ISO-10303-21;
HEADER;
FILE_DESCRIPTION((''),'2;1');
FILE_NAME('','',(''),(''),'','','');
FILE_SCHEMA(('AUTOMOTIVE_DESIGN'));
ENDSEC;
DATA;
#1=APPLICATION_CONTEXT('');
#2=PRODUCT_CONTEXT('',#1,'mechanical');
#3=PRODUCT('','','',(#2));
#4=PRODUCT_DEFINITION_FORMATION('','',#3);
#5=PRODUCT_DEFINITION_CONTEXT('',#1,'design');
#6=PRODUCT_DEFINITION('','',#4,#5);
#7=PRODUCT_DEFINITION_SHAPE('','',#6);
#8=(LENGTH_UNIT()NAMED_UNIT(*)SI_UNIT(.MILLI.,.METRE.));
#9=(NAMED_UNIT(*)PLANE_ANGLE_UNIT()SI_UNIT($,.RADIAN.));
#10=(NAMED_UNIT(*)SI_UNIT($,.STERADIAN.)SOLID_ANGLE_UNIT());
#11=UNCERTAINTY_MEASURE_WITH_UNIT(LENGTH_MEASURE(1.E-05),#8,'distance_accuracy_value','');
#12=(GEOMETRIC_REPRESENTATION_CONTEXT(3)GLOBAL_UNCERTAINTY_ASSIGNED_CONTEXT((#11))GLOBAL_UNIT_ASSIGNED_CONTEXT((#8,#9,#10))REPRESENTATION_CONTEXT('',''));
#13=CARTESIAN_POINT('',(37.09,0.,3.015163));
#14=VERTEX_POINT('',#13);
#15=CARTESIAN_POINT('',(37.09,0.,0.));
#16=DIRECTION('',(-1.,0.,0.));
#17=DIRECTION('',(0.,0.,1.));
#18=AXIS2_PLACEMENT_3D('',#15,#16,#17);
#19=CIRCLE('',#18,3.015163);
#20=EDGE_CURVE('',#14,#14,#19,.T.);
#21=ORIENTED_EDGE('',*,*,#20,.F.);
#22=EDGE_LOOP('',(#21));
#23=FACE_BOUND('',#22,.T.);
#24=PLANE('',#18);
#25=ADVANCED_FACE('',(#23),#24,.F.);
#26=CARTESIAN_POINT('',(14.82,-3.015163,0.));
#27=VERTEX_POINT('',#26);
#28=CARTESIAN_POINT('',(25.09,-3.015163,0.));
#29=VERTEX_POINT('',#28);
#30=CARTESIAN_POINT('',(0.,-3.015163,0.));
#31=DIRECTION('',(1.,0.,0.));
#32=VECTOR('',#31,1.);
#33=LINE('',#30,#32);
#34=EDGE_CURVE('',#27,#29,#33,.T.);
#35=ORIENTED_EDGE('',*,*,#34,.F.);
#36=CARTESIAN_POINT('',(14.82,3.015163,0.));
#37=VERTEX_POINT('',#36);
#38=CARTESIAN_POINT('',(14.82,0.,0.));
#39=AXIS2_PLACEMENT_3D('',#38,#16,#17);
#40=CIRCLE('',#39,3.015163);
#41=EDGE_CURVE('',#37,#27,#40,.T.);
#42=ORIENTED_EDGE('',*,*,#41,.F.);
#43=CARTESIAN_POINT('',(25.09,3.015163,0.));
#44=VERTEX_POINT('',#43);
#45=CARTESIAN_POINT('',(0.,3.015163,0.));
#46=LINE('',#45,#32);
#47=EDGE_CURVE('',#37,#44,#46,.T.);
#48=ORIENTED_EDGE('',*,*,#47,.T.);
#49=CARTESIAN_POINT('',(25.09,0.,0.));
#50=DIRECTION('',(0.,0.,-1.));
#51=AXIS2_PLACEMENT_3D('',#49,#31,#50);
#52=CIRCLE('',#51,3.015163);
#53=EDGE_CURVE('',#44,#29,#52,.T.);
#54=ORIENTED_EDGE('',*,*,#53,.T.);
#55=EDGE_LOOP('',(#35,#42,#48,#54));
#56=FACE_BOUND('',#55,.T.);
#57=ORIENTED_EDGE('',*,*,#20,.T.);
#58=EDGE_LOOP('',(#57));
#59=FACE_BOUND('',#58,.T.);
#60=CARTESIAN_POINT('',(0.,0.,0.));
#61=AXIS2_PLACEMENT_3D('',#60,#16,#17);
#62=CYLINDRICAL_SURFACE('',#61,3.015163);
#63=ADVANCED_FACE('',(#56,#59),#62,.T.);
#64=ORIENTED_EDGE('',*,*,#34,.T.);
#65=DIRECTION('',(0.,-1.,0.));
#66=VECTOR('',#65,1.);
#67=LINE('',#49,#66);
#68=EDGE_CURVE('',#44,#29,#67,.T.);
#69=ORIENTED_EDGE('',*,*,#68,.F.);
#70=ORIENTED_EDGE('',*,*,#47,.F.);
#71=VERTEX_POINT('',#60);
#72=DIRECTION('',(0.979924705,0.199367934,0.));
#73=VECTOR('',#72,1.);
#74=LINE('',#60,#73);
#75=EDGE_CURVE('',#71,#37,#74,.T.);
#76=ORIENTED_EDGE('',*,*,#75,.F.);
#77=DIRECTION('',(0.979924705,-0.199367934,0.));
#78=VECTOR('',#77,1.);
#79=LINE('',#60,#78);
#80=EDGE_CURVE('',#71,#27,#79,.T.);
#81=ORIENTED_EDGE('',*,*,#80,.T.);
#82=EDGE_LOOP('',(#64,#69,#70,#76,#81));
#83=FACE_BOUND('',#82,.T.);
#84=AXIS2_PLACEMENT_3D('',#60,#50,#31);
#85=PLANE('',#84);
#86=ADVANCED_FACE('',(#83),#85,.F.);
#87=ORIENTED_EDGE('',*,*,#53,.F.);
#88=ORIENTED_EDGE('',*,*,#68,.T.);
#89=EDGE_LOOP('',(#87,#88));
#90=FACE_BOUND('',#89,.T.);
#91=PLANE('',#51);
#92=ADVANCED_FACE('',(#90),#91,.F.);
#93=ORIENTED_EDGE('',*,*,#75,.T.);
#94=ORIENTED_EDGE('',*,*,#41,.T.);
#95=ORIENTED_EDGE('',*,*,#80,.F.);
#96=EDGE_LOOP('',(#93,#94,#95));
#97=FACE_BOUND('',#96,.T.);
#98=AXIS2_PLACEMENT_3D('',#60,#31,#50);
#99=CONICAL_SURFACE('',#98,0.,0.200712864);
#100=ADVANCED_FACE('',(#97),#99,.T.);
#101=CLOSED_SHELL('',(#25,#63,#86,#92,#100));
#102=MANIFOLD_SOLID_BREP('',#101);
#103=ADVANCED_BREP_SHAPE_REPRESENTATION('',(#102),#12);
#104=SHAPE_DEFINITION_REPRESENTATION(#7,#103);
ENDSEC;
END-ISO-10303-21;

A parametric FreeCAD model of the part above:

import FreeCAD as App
import Part
import Sketcher
from FreeCAD import Vector
Q = App.Units.Quantity


def add_polygon(sketch, points):
    """Adds a closed chain of lines whose ends are joined by coincident constraints."""
    first, n = sketch.GeometryCount, len(points)
    for a, b in zip(points, points[1:] + points[:1]):
        sketch.addGeometry(Part.LineSegment(App.Vector(*a, 0), App.Vector(*b, 0)), False)
    for i in range(n):
        sketch.addConstraint(Sketcher.Constraint("Coincident", first + i, 2, first + (i + 1) % n, 1))

doc = App.newDocument("Part")
body = doc.addObject("PartDesign::Body", "Body")

# Sketch on XY plane
sketch1 = body.newObject("Sketcher::SketchObject", "Sketch")
sketch1.AttachmentSupport = (doc.getObject("XY_Plane"), [""])
sketch1.MapMode = "FlatFace"
add_polygon(sketch1, [(0, 0), (14.8, -3), (37.1, -3), (37.1, 0)])  # lines 0-3
sketch1.addConstraint([
    Sketcher.Constraint("Horizontal", 1),
    Sketcher.Constraint("Vertical", 2),
    Sketcher.Constraint("Horizontal", 3),
    Sketcher.Constraint("Coincident", 3, 2, -1, 1),
    Sketcher.Constraint("Angle", 0, Q("-11.5 deg")),
    Sketcher.Constraint("DistanceX", 1, 1, 1, 2, Q("22.27 mm")),
    Sketcher.Constraint("DistanceX", 3, 2, 3, 1, Q("37.09 mm")),
])
revolution = body.newObject("PartDesign::Revolution", "Revolution")
revolution.Profile = sketch1
revolution.ReferenceAxis = (sketch1, ["H_Axis"])
revolution.Angle = 180

# Sketch on YZ plane
sketch2 = body.newObject("Sketcher::SketchObject", "Sketch001")
sketch2.AttachmentSupport = (doc.getObject("YZ_Plane"), [""])
sketch2.MapMode = "FlatFace"
sketch2.AttachmentOffset = App.Placement(Vector(0, 0, 37.09), App.Rotation())
sketch2.addGeometry(Part.Circle(Vector(0, 0, 0), Vector(0, 0, 1), 3), False)
sketch2.addConstraint([
    Sketcher.Constraint("Coincident", 0, 3, -1, 1),
    Sketcher.Constraint("Diameter", 0, Q("6.030326 mm")),
])
pad1 = body.newObject("PartDesign::Pad", "Pad")
pad1.Profile = sketch2
pad1.Length = 12
pad1.Reversed = True

doc.recompute()
